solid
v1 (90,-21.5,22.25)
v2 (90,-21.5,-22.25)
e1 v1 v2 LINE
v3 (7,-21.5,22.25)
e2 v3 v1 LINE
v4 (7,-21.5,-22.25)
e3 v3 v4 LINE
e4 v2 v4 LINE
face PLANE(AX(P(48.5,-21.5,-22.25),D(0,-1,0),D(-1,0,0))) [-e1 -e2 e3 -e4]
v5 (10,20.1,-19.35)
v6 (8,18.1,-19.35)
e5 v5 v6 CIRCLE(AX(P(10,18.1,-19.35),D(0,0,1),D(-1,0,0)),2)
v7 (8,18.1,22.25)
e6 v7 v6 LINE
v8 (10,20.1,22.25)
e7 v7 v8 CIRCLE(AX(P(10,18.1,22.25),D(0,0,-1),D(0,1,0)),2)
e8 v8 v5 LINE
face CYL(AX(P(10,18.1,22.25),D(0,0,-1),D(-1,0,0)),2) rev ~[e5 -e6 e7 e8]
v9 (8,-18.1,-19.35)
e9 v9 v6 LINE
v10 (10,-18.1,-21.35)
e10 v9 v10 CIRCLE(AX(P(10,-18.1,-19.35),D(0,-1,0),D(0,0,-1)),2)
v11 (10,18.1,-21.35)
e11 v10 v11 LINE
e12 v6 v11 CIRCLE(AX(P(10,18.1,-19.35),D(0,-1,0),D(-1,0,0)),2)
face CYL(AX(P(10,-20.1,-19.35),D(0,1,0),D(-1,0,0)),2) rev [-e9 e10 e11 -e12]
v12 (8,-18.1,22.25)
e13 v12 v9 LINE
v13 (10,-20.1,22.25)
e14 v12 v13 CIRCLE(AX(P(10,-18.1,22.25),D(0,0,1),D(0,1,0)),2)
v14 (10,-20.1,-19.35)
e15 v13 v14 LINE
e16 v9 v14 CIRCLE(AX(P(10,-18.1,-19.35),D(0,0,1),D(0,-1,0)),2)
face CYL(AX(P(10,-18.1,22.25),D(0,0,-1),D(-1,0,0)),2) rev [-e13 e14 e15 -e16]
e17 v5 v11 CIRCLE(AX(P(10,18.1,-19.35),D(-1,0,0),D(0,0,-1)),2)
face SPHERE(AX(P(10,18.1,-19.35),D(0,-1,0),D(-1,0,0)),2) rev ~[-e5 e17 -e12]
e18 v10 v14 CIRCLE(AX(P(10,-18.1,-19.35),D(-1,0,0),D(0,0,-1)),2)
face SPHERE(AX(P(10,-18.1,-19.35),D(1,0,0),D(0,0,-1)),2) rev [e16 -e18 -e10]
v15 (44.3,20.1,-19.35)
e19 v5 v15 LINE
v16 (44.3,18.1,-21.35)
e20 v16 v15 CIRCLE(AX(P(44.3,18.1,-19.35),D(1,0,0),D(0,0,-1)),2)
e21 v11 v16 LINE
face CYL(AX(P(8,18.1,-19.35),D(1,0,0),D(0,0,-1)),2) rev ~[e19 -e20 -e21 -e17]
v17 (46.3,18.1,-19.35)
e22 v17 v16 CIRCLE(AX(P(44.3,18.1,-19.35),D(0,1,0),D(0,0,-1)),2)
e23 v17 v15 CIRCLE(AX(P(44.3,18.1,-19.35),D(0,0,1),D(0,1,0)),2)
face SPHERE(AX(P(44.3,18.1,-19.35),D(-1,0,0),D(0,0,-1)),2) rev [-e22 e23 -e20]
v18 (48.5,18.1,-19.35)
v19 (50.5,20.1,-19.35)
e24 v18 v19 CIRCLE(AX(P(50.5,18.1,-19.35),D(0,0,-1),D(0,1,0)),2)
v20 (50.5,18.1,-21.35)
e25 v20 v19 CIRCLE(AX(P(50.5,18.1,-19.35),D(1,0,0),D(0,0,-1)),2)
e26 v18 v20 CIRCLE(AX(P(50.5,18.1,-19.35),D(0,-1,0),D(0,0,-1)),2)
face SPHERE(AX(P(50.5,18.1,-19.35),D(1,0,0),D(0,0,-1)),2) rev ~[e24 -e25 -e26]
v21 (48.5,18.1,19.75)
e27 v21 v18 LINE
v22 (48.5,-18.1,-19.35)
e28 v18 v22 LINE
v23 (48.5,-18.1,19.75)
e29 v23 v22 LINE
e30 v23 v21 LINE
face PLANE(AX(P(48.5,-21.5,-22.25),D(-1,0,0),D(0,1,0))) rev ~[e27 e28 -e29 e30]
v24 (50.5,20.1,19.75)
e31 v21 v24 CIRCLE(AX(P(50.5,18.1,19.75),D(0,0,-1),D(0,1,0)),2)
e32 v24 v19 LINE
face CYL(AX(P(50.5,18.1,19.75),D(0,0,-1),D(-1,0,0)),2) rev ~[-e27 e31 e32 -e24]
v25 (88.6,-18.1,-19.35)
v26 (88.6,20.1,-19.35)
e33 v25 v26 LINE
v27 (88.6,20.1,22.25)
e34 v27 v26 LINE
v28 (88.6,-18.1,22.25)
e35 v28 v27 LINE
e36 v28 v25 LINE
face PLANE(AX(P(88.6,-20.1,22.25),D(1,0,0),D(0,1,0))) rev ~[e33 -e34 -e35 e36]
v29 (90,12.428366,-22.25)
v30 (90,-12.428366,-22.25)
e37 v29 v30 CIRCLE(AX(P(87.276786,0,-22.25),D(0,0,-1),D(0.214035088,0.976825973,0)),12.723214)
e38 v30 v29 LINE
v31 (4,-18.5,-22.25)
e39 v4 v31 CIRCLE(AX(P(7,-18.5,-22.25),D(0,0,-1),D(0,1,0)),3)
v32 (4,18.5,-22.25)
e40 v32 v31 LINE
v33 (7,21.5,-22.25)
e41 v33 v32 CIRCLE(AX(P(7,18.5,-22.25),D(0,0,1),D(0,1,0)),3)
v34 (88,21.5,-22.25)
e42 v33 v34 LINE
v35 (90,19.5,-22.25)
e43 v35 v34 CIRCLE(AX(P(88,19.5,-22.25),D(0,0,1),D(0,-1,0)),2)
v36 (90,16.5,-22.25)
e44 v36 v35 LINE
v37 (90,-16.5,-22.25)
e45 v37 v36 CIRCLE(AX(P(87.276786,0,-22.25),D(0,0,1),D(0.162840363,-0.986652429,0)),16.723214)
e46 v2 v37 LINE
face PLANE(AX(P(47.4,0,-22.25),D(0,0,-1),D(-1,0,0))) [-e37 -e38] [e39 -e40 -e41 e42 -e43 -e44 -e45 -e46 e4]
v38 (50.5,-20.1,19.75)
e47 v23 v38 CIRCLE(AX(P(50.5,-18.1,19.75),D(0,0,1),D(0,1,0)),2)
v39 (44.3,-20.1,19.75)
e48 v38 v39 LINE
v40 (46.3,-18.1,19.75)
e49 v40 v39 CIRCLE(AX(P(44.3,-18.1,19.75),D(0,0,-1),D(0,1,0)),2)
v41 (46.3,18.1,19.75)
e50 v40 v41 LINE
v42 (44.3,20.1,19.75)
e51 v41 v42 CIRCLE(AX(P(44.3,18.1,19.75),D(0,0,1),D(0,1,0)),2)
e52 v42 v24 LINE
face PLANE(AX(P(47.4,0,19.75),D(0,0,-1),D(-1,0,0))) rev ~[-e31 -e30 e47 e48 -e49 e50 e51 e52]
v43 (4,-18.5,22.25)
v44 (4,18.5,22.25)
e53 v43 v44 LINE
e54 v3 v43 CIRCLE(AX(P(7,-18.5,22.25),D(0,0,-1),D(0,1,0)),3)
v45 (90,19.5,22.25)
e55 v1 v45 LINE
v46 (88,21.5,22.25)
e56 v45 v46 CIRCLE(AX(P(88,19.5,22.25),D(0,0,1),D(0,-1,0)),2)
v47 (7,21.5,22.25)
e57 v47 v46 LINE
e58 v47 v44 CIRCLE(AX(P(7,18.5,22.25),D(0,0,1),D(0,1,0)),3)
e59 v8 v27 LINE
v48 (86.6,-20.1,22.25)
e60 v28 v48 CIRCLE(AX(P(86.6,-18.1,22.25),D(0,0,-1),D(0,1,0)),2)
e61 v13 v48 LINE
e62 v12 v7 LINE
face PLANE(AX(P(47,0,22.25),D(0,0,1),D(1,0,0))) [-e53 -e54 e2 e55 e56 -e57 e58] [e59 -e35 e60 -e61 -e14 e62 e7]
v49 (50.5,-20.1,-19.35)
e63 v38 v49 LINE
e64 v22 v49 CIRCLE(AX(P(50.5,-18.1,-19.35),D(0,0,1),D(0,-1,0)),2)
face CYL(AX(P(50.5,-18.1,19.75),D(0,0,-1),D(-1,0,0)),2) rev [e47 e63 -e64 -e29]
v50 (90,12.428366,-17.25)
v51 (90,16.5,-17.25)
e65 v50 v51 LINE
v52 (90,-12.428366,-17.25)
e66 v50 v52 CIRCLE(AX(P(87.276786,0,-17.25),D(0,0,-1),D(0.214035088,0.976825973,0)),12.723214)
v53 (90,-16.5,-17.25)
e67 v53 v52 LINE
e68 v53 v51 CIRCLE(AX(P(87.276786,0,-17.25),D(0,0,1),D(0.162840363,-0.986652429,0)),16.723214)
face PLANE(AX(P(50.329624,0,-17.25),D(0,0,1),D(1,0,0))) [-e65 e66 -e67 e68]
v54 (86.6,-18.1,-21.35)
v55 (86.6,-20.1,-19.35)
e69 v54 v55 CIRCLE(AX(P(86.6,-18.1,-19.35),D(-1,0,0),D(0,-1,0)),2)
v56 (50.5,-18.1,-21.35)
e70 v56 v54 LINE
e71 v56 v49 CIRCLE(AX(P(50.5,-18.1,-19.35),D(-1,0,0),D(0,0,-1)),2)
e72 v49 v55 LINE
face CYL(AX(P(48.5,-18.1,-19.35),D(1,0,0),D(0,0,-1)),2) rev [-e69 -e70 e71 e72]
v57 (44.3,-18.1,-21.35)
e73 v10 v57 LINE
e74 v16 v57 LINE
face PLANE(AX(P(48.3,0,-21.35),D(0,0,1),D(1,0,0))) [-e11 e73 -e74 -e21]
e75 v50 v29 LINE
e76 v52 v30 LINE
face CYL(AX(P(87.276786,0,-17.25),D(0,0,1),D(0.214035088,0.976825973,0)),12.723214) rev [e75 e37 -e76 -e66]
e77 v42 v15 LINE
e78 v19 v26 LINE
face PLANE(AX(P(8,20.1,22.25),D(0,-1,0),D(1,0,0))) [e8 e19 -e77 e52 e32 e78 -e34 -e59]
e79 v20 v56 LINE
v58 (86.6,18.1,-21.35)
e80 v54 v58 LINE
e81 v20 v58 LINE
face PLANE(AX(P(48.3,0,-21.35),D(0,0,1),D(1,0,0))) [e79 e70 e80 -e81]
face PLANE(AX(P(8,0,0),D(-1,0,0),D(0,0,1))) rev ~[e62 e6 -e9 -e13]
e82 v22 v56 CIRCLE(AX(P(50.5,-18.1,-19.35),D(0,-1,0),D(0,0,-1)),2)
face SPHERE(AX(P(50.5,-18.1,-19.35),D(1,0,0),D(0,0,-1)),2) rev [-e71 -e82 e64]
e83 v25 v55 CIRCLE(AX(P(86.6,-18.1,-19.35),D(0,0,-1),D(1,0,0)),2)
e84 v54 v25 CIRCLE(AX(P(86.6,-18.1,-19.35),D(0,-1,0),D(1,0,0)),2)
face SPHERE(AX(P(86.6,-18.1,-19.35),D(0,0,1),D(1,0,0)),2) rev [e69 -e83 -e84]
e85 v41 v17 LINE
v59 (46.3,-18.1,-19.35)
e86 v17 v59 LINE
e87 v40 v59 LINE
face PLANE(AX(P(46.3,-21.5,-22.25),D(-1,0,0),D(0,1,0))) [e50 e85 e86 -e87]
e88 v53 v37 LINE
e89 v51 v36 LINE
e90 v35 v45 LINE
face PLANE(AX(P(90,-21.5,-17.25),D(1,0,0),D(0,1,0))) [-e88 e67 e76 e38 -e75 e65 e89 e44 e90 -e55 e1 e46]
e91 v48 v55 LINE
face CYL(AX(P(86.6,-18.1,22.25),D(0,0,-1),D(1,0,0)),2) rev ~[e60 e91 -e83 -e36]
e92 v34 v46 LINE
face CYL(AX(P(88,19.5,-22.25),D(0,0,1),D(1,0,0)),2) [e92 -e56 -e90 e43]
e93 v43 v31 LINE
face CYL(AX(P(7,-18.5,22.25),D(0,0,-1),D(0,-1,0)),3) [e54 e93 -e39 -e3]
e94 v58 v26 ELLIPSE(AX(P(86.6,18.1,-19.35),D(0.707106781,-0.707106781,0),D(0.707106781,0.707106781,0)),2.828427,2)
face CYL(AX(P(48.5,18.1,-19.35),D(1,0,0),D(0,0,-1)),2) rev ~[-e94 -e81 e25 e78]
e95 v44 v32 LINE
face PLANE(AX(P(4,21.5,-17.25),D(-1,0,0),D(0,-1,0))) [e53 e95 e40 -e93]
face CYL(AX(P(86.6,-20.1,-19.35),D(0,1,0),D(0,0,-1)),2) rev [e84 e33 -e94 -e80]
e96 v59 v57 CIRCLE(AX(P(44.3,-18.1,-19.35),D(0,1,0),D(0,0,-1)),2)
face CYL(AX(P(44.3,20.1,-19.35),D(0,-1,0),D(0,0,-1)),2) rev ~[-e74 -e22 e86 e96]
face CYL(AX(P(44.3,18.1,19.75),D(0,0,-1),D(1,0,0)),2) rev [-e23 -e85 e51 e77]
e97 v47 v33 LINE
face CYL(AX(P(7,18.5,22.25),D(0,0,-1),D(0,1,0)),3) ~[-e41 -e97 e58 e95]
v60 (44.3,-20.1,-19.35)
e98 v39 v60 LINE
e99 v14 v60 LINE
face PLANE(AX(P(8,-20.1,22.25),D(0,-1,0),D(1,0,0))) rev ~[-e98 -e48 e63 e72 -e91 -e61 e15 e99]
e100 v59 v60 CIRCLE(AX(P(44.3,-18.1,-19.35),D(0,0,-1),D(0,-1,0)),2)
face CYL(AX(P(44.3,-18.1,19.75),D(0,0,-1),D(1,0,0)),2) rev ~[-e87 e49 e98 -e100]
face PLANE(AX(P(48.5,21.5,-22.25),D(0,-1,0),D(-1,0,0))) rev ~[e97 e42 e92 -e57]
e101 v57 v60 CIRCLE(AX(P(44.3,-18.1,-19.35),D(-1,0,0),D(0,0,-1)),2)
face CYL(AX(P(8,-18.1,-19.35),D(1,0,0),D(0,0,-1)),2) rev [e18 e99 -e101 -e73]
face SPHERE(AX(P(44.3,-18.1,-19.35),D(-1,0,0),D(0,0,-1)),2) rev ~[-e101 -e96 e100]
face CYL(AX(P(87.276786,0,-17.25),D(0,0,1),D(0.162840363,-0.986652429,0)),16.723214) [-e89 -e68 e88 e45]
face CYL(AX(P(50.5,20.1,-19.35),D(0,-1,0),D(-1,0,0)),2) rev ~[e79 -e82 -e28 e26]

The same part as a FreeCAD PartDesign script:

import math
import FreeCAD as App
import Part
import Sketcher
from FreeCAD import Vector
Q = App.Units.Quantity


def edges_at(feature, points):
    """Names of the edges that pass closest to the given points."""
    edges = feature.Shape.Edges
    near = lambda p: min(range(len(edges)), key=lambda i: edges[i].distToShape(Part.Vertex(*p))[0])
    return sorted({f"Edge{near(p) + 1}" for p in points})

doc = App.newDocument("Part")
body = doc.addObject("PartDesign::Body", "Body")

sketch1 = body.newObject("Sketcher::SketchObject", "Sketch")
sketch1.AttachmentSupport = (doc.getObject("XY_Plane"), [""])
sketch1.MapMode = "FlatFace"
sketch1.AttachmentOffset = App.Placement(Vector(0, 0, 22.25), App.Rotation())
sketch1.addGeometry([
    Part.LineSegment(Vector(4, 22, 0), Vector(4, -22, 0)),
    Part.LineSegment(Vector(4, -22, 0), Vector(90, -22, 0)),
    Part.LineSegment(Vector(90, -22, 0), Vector(90, 22, 0)),
    Part.LineSegment(Vector(90, 22, 0), Vector(4, 22, 0)),
], False)
sketch1.addConstraint([
    Sketcher.Constraint("Coincident", 0, 2, 1, 1),
    Sketcher.Constraint("Coincident", 1, 2, 2, 1),
    Sketcher.Constraint("Coincident", 2, 2, 3, 1),
    Sketcher.Constraint("Coincident", 3, 2, 0, 1),
    Sketcher.Constraint("Vertical", 0),
    Sketcher.Constraint("Horizontal", 1),
    Sketcher.Constraint("Vertical", 2),
    Sketcher.Constraint("Horizontal", 3),
    Sketcher.Constraint("DistanceX", 1, 1, 1, 2, Q("86 mm")),
    Sketcher.Constraint("DistanceY", 0, 2, 0, 1, Q("43 mm")),
    Sketcher.Constraint("DistanceX", -1, 1, 0, 2, Q("4 mm")),
    Sketcher.Constraint("DistanceY", 0, 2, -1, 1, Q("21.5 mm")),
])
pad1 = body.newObject("PartDesign::Pad", "Pad")
pad1.Profile = sketch1
pad1.Length = 39.5
pad1.Reversed = True

sketch2 = body.newObject("Sketcher::SketchObject", "Sketch001")
sketch2.AttachmentSupport = (doc.getObject("XY_Plane"), [""])
sketch2.MapMode = "FlatFace"
sketch2.AttachmentOffset = App.Placement(Vector(0, 0, -17.25), App.Rotation())
sketch2.addGeometry([
    Part.LineSegment(Vector(90, -16, 0), Vector(90, -22, 0)),
    Part.LineSegment(Vector(90, -22, 0), Vector(4, -22, 0)),
    Part.LineSegment(Vector(4, -22, 0), Vector(4, 22, 0)),
    Part.LineSegment(Vector(4, 22, 0), Vector(90, 22, 0)),
    Part.LineSegment(Vector(90, 22, 0), Vector(90, 16, 0)),
    Part.ArcOfCircle(Part.Circle(Vector(87, 0, 0), Vector(0, 0, 1), 17), math.radians(-81), math.radians(81)),
    Part.ArcOfCircle(Part.Circle(Vector(87, 0, 0), Vector(0, 0, 1), 13), math.radians(-78), math.radians(78)),
    Part.LineSegment(Vector(90, 12, 0), Vector(90, -12, 0)),
], False)
sketch2.addConstraint([
    Sketcher.Constraint("Coincident", 0, 2, 1, 1),
    Sketcher.Constraint("Coincident", 1, 2, 2, 1),
    Sketcher.Constraint("Coincident", 2, 2, 3, 1),
    Sketcher.Constraint("Coincident", 3, 2, 4, 1),
    Sketcher.Constraint("Coincident", 4, 2, 5, 2),
    Sketcher.Constraint("Coincident", 5, 1, 0, 1),
    Sketcher.Constraint("Coincident", 6, 1, 7, 2),
    Sketcher.Constraint("Coincident", 7, 1, 6, 2),
    Sketcher.Constraint("Vertical", 0),
    Sketcher.Constraint("Horizontal", 1),
    Sketcher.Constraint("Vertical", 2),
    Sketcher.Constraint("Horizontal", 3),
    Sketcher.Constraint("Vertical", 4),
    Sketcher.Constraint("Vertical", 7),
    Sketcher.Constraint("Coincident", 6, 3, 5, 3),
    Sketcher.Constraint("Symmetric", 0, 2, 3, 2, -1),
    Sketcher.Constraint("PointOnObject", 5, 3, -1),
    Sketcher.Constraint("Vertical", 5, 1, 6, 1),
    Sketcher.Constraint("DistanceX", 1, 2, 1, 1, Q("86 mm")),
    Sketcher.Constraint("DistanceY", 0, 2, 0, 1, Q("5 mm")),
    Sketcher.Constraint("DistanceY", 2, 1, 2, 2, Q("43 mm")),
    Sketcher.Constraint("DistanceX", -1, 1, 0, 2, Q("90 mm")),
    Sketcher.Constraint("Radius", 5, Q("16.723214 mm")),
    Sketcher.Constraint("Radius", 6, Q("12.723214 mm")),
])
pad2 = body.newObject("PartDesign::Pad", "Pad001")
pad2.Profile = sketch2
pad2.Length = 5
pad2.Reversed = True

sketch3 = body.newObject("Sketcher::SketchObject", "Sketch002")
sketch3.AttachmentSupport = (doc.getObject("XY_Plane"), [""])
sketch3.MapMode = "FlatFace"
sketch3.AttachmentOffset = App.Placement(Vector(0, 0, 22.25), App.Rotation())
sketch3.addGeometry([
    Part.LineSegment(Vector(8, 20, 0), Vector(8, -20, 0)),
    Part.LineSegment(Vector(8, -20, 0), Vector(89, -20, 0)),
    Part.LineSegment(Vector(89, -20, 0), Vector(89, 20, 0)),
    Part.LineSegment(Vector(89, 20, 0), Vector(8, 20, 0)),
], False)
sketch3.addConstraint([
    Sketcher.Constraint("Coincident", 0, 2, 1, 1),
    Sketcher.Constraint("Coincident", 1, 2, 2, 1),
    Sketcher.Constraint("Coincident", 2, 2, 3, 1),
    Sketcher.Constraint("Coincident", 3, 2, 0, 1),
    Sketcher.Constraint("Vertical", 0),
    Sketcher.Constraint("Horizontal", 1),
    Sketcher.Constraint("Vertical", 2),
    Sketcher.Constraint("Horizontal", 3),
    Sketcher.Constraint("DistanceX", 1, 1, 1, 2, Q("80.6 mm")),
    Sketcher.Constraint("DistanceY", 0, 2, 0, 1, Q("40.2 mm")),
    Sketcher.Constraint("DistanceX", -1, 1, 0, 2, Q("8 mm")),
    Sketcher.Constraint("DistanceY", 0, 2, -1, 1, Q("20.1 mm")),
])
pocket1 = body.newObject("PartDesign::Pocket", "Pocket")
pocket1.Profile = sketch3
pocket1.Length = 43.6

sketch4 = body.newObject("Sketcher::SketchObject", "Sketch003")
sketch4.AttachmentSupport = (doc.getObject("YZ_Plane"), [""])
sketch4.MapMode = "FlatFace"
sketch4.AttachmentOffset = App.Placement(Vector(0, 0, 4), App.Rotation())
sketch4.addGeometry(Part.Circle(Vector(0, 0, 0), Vector(0, 0, 1), 4.2), False)
sketch4.addConstraint([
    Sketcher.Constraint("Coincident", 0, 3, -1, 1),
    Sketcher.Constraint("Diameter", 0, Q("8.3 mm")),
])
doc.recompute()
hole = body.newObject("PartDesign::Hole", "Hole")
hole.Profile = sketch4
hole.ThreadType = "None"
hole.Diameter = 8.3
hole.DepthType = "Dimension"
hole.Depth = 3.2
hole.DrillPoint = "Flat"
hole.Reversed = True
doc.recompute()

fillet = body.newObject("PartDesign::Fillet", "Fillet")
fillet.Base = (hole, edges_at(hole, [(4, -21.5, 0), (4, 21.5, 0)]))
fillet.Radius = 3

sketch5 = body.newObject("Sketcher::SketchObject", "Sketch004")
sketch5.AttachmentSupport = (doc.getObject("YZ_Plane"), [""])
sketch5.MapMode = "FlatFace"
sketch5.AttachmentOffset = App.Placement(Vector(0, 0, 8), App.Rotation())
sketch5.addGeometry(Part.Circle(Vector(0, 0, 0), Vector(0, 0, 1), 4.2), False)
sketch5.addConstraint([
    Sketcher.Constraint("Coincident", 0, 3, -1, 1),
    Sketcher.Constraint("Diameter", 0, Q("8.3 mm")),
])
pad3 = body.newObject("PartDesign::Pad", "Pad002")
pad3.Profile = sketch5
pad3.Length = 4
pad3.Reversed = True

sketch6 = body.newObject("Sketcher::SketchObject", "Sketch005")
sketch6.AttachmentSupport = (doc.getObject("XY_Plane"), [""])
sketch6.MapMode = "FlatFace"
sketch6.AttachmentOffset = App.Placement(Vector(0, 0, -22.25), App.Rotation())
sketch6.addGeometry([
    Part.LineSegment(Vector(48.5, 21.5, 0), Vector(48.5, -21.5, 0)),
    Part.LineSegment(Vector(48.5, -21.5, 0), Vector(46.3, -21.5, 0)),
    Part.LineSegment(Vector(46.3, -21.5, 0), Vector(46.3, 21.5, 0)),
    Part.LineSegment(Vector(46.3, 21.5, 0), Vector(48.5, 21.5, 0)),
], False)
sketch6.addConstraint([
    Sketcher.Constraint("Coincident", 0, 2, 1, 1),
    Sketcher.Constraint("Coincident", 1, 2, 2, 1),
    Sketcher.Constraint("Coincident", 2, 2, 3, 1),
    Sketcher.Constraint("Coincident", 3, 2, 0, 1),
    Sketcher.Constraint("Vertical", 0),
    Sketcher.Constraint("Horizontal", 1),
    Sketcher.Constraint("Vertical", 2),
    Sketcher.Constraint("Horizontal", 3),
    Sketcher.Constraint("DistanceY", 0, 2, 0, 1, Q("43 mm")),
    Sketcher.Constraint("DistanceX", 1, 2, 1, 1, Q("2.2 mm")),
    Sketcher.Constraint("DistanceX", -1, 1, 0, 2, Q("48.5 mm")),
    Sketcher.Constraint("DistanceY", 0, 2, -1, 1, Q("21.5 mm")),
])
pad4 = body.newObject("PartDesign::Pad", "Pad003")
pad4.Profile = sketch6
pad4.Length = 42
doc.recompute()

fillet2 = body.newObject("PartDesign::Fillet", "Fillet001")
fillet2.Base = (pad4, edges_at(pad4, [
    (27.15, -20.1, -21.35),
    (88.6, -20.1, 0.45),
    (8, 0, -21.35),
    (8, -20.1, 0.45),
    (68.55, 20.1, -21.35),
    (8, 20.1, 0.45),
    (88.6, 0, -21.35),
    (68.55, -20.1, -21.35),
    (27.15, 20.1, -21.35),
    (48.5, 0, -21.35),
    (46.3, 0, -21.35),
    (90, 21.5, 0),
    (46.3, -20.1, -0.8),
    (46.3, 20.1, -0.8),
    (48.5, -20.1, -0.8),
    (48.5, 20.1, -0.8),
]))
fillet2.Radius = 2

doc.recompute()
